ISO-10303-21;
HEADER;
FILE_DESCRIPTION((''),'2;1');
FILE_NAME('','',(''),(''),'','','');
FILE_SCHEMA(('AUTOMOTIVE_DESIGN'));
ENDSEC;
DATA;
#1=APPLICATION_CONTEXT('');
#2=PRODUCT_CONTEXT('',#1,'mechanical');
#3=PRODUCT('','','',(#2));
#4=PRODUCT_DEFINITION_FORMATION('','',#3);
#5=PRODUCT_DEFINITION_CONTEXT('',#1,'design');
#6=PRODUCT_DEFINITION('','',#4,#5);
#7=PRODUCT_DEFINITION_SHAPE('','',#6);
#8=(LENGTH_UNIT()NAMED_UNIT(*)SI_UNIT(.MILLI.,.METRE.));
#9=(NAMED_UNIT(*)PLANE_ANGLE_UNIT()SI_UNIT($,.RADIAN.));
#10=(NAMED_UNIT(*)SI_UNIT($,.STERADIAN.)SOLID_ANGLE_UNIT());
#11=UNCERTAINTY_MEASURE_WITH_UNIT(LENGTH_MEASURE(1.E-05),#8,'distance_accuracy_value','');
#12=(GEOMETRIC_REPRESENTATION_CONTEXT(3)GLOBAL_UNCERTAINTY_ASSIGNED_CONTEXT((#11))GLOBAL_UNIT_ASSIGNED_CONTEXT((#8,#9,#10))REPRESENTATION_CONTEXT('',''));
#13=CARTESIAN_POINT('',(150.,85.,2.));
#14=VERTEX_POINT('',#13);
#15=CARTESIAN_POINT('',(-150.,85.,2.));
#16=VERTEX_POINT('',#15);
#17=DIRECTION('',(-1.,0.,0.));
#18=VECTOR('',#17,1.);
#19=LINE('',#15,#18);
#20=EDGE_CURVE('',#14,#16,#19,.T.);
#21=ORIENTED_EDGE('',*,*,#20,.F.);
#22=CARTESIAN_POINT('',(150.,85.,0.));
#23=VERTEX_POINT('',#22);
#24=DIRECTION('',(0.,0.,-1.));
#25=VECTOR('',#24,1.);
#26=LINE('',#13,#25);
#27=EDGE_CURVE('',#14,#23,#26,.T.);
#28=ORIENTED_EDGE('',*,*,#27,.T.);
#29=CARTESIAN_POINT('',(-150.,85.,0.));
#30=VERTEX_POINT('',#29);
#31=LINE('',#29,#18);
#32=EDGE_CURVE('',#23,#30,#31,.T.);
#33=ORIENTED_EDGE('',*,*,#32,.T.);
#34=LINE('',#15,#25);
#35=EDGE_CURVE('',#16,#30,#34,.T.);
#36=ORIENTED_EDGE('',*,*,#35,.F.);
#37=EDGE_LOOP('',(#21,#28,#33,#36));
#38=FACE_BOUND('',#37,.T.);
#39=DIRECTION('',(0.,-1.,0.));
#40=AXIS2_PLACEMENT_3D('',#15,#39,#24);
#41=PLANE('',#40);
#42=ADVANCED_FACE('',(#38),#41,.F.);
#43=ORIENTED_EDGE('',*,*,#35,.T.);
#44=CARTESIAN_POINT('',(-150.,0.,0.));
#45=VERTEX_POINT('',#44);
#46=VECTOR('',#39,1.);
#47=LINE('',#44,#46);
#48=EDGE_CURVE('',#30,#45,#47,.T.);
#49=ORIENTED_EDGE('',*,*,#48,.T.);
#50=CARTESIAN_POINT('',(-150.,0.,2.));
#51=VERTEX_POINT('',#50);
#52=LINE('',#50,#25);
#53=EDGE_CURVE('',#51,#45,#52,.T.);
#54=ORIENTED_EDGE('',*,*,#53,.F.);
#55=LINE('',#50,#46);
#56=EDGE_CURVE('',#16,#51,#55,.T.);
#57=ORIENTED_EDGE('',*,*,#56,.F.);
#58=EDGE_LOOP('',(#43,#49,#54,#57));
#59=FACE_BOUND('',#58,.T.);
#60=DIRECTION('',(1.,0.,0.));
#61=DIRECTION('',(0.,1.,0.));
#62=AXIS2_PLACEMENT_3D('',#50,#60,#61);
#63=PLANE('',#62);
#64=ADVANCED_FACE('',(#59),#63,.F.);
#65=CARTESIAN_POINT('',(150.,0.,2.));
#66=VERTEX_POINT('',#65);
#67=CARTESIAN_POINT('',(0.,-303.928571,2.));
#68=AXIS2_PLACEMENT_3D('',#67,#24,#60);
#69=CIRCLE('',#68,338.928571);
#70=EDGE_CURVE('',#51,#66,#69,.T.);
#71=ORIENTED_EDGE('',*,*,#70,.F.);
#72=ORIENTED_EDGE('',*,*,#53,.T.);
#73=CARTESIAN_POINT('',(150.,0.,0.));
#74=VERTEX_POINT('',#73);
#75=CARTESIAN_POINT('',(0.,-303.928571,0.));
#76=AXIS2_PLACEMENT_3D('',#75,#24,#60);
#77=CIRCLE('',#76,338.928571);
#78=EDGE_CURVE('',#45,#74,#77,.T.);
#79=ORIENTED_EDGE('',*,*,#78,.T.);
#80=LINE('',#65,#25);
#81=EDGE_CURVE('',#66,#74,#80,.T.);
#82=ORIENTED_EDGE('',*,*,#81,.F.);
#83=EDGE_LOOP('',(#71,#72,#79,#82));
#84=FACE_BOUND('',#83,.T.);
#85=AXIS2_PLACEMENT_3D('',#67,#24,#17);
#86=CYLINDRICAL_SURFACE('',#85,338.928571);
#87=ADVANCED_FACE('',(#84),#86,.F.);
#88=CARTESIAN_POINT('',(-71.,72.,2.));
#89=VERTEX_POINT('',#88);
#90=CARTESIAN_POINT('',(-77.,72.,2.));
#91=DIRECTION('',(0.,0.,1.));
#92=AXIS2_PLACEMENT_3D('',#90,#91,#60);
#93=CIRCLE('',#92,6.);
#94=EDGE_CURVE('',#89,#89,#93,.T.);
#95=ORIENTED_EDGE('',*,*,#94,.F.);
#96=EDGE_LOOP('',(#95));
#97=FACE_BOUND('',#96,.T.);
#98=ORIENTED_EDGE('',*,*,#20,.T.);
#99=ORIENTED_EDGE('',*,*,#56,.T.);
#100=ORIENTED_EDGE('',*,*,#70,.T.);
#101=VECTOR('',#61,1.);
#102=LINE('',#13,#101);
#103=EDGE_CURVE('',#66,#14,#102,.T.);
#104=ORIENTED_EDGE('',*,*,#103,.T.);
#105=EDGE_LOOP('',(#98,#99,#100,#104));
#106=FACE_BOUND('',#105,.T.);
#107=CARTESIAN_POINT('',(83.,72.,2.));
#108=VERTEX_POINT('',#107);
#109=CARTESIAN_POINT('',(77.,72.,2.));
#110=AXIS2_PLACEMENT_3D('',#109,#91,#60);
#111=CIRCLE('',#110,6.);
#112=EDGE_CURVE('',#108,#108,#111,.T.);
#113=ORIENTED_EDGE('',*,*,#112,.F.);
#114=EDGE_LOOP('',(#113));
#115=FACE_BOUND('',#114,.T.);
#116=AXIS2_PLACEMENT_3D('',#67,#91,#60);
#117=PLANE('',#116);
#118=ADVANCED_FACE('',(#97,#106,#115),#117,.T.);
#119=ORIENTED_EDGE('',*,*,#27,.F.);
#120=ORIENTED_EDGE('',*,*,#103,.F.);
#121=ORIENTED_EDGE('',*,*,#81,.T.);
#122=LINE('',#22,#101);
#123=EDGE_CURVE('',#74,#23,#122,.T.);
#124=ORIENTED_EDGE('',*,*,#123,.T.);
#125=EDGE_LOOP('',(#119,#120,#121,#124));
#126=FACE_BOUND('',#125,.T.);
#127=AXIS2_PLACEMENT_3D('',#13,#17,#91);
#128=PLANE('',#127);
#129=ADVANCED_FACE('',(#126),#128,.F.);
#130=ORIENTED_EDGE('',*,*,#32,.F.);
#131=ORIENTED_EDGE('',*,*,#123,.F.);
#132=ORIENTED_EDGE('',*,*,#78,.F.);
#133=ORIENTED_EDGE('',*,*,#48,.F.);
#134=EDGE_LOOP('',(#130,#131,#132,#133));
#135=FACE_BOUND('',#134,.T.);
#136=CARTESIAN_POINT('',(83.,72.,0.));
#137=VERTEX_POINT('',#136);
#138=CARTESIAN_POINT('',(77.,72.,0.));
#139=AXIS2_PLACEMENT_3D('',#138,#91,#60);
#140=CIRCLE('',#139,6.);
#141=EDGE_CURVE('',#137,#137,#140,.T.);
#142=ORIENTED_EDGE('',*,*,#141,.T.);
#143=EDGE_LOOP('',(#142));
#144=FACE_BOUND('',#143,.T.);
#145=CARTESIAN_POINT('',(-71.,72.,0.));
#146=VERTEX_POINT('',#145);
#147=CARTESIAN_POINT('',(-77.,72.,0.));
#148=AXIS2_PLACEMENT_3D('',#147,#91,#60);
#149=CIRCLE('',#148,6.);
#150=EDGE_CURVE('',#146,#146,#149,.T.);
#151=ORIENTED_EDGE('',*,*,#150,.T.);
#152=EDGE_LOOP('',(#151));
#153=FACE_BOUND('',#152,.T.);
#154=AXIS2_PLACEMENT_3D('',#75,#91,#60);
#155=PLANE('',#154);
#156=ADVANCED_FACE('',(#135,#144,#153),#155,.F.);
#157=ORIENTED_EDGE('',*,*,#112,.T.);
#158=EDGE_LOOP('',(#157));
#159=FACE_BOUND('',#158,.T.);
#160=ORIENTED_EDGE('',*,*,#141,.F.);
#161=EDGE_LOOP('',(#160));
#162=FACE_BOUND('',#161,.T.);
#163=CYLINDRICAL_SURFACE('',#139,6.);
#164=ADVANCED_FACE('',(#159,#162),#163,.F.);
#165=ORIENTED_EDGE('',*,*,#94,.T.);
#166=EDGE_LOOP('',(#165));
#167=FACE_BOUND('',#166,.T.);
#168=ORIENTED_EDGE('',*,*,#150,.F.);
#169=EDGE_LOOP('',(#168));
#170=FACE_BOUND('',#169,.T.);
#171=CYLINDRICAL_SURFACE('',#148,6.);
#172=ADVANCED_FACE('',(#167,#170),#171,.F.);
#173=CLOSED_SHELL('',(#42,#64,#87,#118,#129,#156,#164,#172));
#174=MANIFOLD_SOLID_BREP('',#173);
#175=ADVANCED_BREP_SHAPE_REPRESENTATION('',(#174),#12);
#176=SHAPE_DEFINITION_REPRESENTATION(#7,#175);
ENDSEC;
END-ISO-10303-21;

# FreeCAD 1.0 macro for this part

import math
import FreeCAD as App
import Part
import Sketcher

doc = App.newDocument("Part")
params = doc.addObject("Spreadsheet::Sheet", "Params")
for row, (alias, value) in enumerate([
    ("sketch1_width", "300 mm"),
    ("sketch1_height", "85 mm"),
    ("pad1_length", "2 mm"),
    ("sketch2_diameter", "12 mm"),
], start=1):
    params.set(f"A{row}", alias)
    params.set(f"B{row}", "=" + value)
    params.setAlias(f"B{row}", alias)

body = doc.addObject("PartDesign::Body", "Body")

sketch1 = doc.addObject("Sketcher::SketchObject", "Sketch")
body.addObject(sketch1)
sketch1.AttachmentSupport = (doc.XY_Plane, [""])
sketch1.MapMode = "FlatFace"
sketch1.addGeometry([
    Part.LineSegment(App.Vector(-150, 85, 0), App.Vector(-150, 0, 0)),
    Part.ArcOfCircle(Part.Circle(App.Vector(0, -304, 0), App.Vector(0, 0, 1), 339), math.radians(64), math.radians(116)),
    Part.LineSegment(App.Vector(150, 0, 0), App.Vector(150, 85, 0)),
    Part.LineSegment(App.Vector(150, 85, 0), App.Vector(-150, 85, 0)),
], False)
sketch1.addConstraint([
    Sketcher.Constraint("Coincident", 0, 2, 1, 2),
    Sketcher.Constraint("Coincident", 1, 1, 2, 1),
    Sketcher.Constraint("Coincident", 2, 2, 3, 1),
    Sketcher.Constraint("Coincident", 3, 2, 0, 1),
    Sketcher.Constraint("Vertical", 0),
    Sketcher.Constraint("Vertical", 2),
    Sketcher.Constraint("Horizontal", 3),
    Sketcher.Constraint("Symmetric", 0, 2, 1, 1, -1, 1),
    Sketcher.Constraint("PointOnObject", 1, 3, -2),
    Sketcher.Constraint("DistanceX", 3, 2, 3, 1, 300.0),
    Sketcher.Constraint("DistanceY", 0, 2, 0, 1, 85.0),
    Sketcher.Constraint("Radius", 1, 338.928571),
])
sketch1.setExpression("Constraints[9]", "Params.sketch1_width")
sketch1.setExpression("Constraints[10]", "Params.sketch1_height")
pad1 = doc.addObject("PartDesign::Pad", "Pad")
body.addObject(pad1)
pad1.Profile = sketch1
pad1.setExpression("Length", "Params.pad1_length")

sketch2 = doc.addObject("Sketcher::SketchObject", "Sketch001")
body.addObject(sketch2)
sketch2.AttachmentSupport = (doc.XY_Plane, [""])
sketch2.MapMode = "FlatFace"
sketch2.AttachmentOffset = App.Placement(App.Vector(0, 0, 2), App.Rotation())
sketch2.addGeometry([
    Part.Circle(App.Vector(-77, 72, 0), App.Vector(0, 0, 1), 6),
    Part.Circle(App.Vector(77, 72, 0), App.Vector(0, 0, 1), 6),
], False)
sketch2.addConstraint([
    Sketcher.Constraint("Equal", 0, 1),
    Sketcher.Constraint("Symmetric", 0, 3, 1, 3, -2),
    Sketcher.Constraint("Diameter", 0, 12.0),
    Sketcher.Constraint("DistanceX", 0, 3, -1, 1, 77.0),
    Sketcher.Constraint("DistanceY", -1, 1, 0, 3, 72.0),
])
sketch2.setExpression("Constraints[2]", "Params.sketch2_diameter")
pocket1 = doc.addObject("PartDesign::Pocket", "Pocket")
body.addObject(pocket1)
pocket1.Profile = sketch2
pocket1.Type = "ThroughAll"

doc.recompute()
